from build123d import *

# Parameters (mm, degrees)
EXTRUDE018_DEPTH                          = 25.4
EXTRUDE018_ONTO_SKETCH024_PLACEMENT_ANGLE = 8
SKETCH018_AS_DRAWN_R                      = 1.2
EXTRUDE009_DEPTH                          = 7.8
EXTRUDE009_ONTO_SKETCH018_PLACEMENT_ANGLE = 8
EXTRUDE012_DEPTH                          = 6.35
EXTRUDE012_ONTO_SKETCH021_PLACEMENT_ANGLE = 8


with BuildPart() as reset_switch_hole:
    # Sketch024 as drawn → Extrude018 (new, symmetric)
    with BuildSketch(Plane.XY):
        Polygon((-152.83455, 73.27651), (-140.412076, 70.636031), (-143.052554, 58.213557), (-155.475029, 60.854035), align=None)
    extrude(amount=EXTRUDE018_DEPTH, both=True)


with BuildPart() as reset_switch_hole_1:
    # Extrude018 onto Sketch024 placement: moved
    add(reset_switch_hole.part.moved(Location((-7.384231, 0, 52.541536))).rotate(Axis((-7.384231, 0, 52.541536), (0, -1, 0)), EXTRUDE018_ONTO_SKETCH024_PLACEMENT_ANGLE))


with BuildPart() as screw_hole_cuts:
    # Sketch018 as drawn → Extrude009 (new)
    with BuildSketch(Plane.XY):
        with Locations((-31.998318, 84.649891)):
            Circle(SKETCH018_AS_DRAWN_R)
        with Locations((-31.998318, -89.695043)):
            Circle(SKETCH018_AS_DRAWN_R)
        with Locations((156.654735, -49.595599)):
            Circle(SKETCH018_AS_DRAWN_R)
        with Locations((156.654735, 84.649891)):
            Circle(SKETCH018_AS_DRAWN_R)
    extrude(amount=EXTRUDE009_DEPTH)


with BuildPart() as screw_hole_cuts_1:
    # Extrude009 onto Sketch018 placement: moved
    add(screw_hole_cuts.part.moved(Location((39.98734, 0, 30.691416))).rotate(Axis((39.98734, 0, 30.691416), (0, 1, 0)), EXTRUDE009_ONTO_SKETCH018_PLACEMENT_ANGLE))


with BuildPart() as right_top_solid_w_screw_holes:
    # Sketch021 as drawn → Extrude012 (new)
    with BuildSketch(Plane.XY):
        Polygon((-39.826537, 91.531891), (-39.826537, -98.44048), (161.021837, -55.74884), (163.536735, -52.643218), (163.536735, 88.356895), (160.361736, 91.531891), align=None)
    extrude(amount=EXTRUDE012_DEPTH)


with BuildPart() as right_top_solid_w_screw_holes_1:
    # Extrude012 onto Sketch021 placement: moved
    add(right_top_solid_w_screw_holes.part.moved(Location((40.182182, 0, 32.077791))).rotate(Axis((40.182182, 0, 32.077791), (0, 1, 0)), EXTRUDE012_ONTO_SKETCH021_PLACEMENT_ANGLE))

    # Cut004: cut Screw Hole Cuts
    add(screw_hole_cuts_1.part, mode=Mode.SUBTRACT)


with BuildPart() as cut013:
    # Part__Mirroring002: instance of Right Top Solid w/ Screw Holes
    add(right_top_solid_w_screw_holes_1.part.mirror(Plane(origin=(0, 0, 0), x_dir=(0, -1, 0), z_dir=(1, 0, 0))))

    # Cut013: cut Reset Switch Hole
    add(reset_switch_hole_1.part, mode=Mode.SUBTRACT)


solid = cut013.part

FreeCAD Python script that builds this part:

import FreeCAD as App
import Part
import Sketcher
Q = App.Units.Quantity

doc = App.newDocument("Part")
body = doc.addObject("PartDesign::Body", "Body")

sketch1 = body.newObject("Sketcher::SketchObject", "Sketch")
sketch1.AttachmentSupport = (doc.getObject("XY_Plane"), [""])
sketch1.MapMode = "FlatFace"
sketch1.addGeometry([
    Part.LineSegment(App.Vector(-140, 71, 0), App.Vector(-153, 73, 0)),
    Part.LineSegment(App.Vector(-153, 73, 0), App.Vector(-155, 61, 0)),
    Part.LineSegment(App.Vector(-155, 61, 0), App.Vector(-143, 58, 0)),
    Part.LineSegment(App.Vector(-143, 58, 0), App.Vector(-140, 71, 0)),
], False)
sketch1.addConstraint([
    Sketcher.Constraint("Coincident", 0, 2, 1, 1),
    Sketcher.Constraint("Coincident", 1, 2, 2, 1),
    Sketcher.Constraint("Coincident", 2, 2, 3, 1),
    Sketcher.Constraint("Coincident", 3, 2, 0, 1),
    Sketcher.Constraint("Perpendicular", 0, 1),
    Sketcher.Constraint("Perpendicular", 1, 2),
    Sketcher.Constraint("Perpendicular", 2, 3),
    Sketcher.Constraint("Equal", 0, 1),
    Sketcher.Constraint("Angle", 0, Q("167.999997 deg")),
    Sketcher.Constraint("Distance", 0, Q("0.5 in")),
    Sketcher.Constraint("DistanceX", 0, 2, -1, 1, 152.83455),
    Sketcher.Constraint("DistanceY", -1, 1, 0, 2, 73.27651),
])
pad1 = body.newObject("PartDesign::Pad", "Pad")
pad1.Profile = sketch1
pad1.Length = Q("2 in")
pad1.Midplane = True
body2 = doc.addObject("PartDesign::Body", "Body001")
doc.recompute()

body.Placement = App.Placement(App.Vector(-7.384231, 0, 52.541536), App.Rotation(App.Vector(0, -1, 0), 8))
boolean = body2.newObject("PartDesign::Boolean", "Boolean")
boolean.Type = "Fuse"
boolean.addObjects([body])
body3 = doc.addObject("PartDesign::Body", "Body002")
body3.AllowCompound = True

sketch2 = body3.newObject("Sketcher::SketchObject", "Sketch001")
sketch2.AttachmentSupport = (doc.getObject("XY_Plane002"), [""])
sketch2.MapMode = "FlatFace"
sketch2.addGeometry([
    Part.Circle(App.Vector(-32, 84.6, 0), App.Vector(0, 0, 1), 1.2),
    Part.Circle(App.Vector(-32, -89.7, 0), App.Vector(0, 0, 1), 1.2),
    Part.Circle(App.Vector(156.7, -49.6, 0), App.Vector(0, 0, 1), 1.2),
    Part.Circle(App.Vector(156.7, 84.6, 0), App.Vector(0, 0, 1), 1.2),
], False)
sketch2.addConstraint([
    Sketcher.Constraint("Equal", 0, 1),
    Sketcher.Constraint("Equal", 1, 2),
    Sketcher.Constraint("Equal", 2, 3),
    Sketcher.Constraint("Horizontal", 0, 3, 3, 3),
    Sketcher.Constraint("Vertical", 0, 3, 1, 3),
    Sketcher.Constraint("Vertical", 2, 3, 3, 3),
    Sketcher.Constraint("Diameter", 0, 2.4),
    Sketcher.Constraint("DistanceY", 2, 3, -1, 1, 49.595599),
    Sketcher.Constraint("DistanceX", 0, 3, -1, 1, 31.998318),
    Sketcher.Constraint("DistanceY", -1, 1, 0, 3, 84.649891),
    Sketcher.Constraint("DistanceY", 1, 3, -1, 1, 89.695043),
    Sketcher.Constraint("DistanceX", -1, 1, 2, 3, 156.654735),
])
pad2 = body3.newObject("PartDesign::Pad", "Pad001")
pad2.Profile = sketch2
pad2.Length = 7.8
body4 = doc.addObject("PartDesign::Body", "Body003")
body4.AllowCompound = True
doc.recompute()

body3.Placement = App.Placement(App.Vector(39.98734, 0, 30.691416), App.Rotation(App.Vector(0, 1, 0), 8))
boolean2 = body4.newObject("PartDesign::Boolean", "Boolean001")
boolean2.Type = "Fuse"
boolean2.addObjects([body3])
body5 = doc.addObject("PartDesign::Body", "Body004")

sketch3 = body5.newObject("Sketcher::SketchObject", "Sketch002")
sketch3.AttachmentSupport = (doc.getObject("XY_Plane004"), [""])
sketch3.MapMode = "FlatFace"
sketch3.addGeometry([
    Part.LineSegment(App.Vector(-39.8, 91.5, 0), App.Vector(-39.8, -98.4, 0)),
    Part.LineSegment(App.Vector(-39.8, -98.4, 0), App.Vector(161, -55.7, 0)),
    Part.LineSegment(App.Vector(161, -55.7, 0), App.Vector(163.5, -52.6, 0)),
    Part.LineSegment(App.Vector(163.5, -52.6, 0), App.Vector(163.5, 88.4, 0)),
    Part.LineSegment(App.Vector(163.5, 88.4, 0), App.Vector(160.4, 91.5, 0)),
    Part.LineSegment(App.Vector(160.4, 91.5, 0), App.Vector(-39.8, 91.5, 0)),
], False)
sketch3.addConstraint([
    Sketcher.Constraint("Coincident", 0, 2, 1, 1),
    Sketcher.Constraint("Coincident", 1, 2, 2, 1),
    Sketcher.Constraint("Coincident", 2, 2, 3, 1),
    Sketcher.Constraint("Coincident", 3, 2, 4, 1),
    Sketcher.Constraint("Coincident", 4, 2, 5, 1),
    Sketcher.Constraint("Coincident", 5, 2, 0, 1),
    Sketcher.Constraint("Vertical", 0),
    Sketcher.Constraint("Vertical", 3),
    Sketcher.Constraint("Horizontal", 5),
    Sketcher.Constraint("Angle", 1, Q("12 deg")),
    Sketcher.Constraint("DistanceX", 4, 2, 3, 2, Q("0.125 in")),
    Sketcher.Constraint("DistanceY", 3, 2, 4, 2, Q("0.1249998 in")),
    Sketcher.Constraint("Distance", 2, 3.996198),
    Sketcher.Constraint("DistanceY", 0, 2, 0, 1, 189.972371),
    Sketcher.Constraint("DistanceX", 4, 2, 1, 2, 0.660101),
    Sketcher.Constraint("DistanceX", 5, 2, 5, 1, 200.188273),
    Sketcher.Constraint("DistanceY", 0, 2, -1, 1, 98.44048),
    Sketcher.Constraint("DistanceX", 0, 2, -1, 1, 39.826537),
])
pad3 = body5.newObject("PartDesign::Pad", "Pad002")
pad3.Profile = sketch3
pad3.Length = Q("0.25 in")
body6 = doc.addObject("PartDesign::Body", "Body005")
doc.recompute()

body5.Placement = App.Placement(App.Vector(40.182182, 0, 32.077791), App.Rotation(App.Vector(0, 1, 0), 8))
boolean3 = body6.newObject("PartDesign::Boolean", "Boolean002")
boolean3.Type = "Fuse"
boolean3.addObjects([body5])
doc.recompute()

boolean4 = body6.newObject("PartDesign::Boolean", "Boolean003")
boolean4.Type = "Cut"
boolean4.addObjects([body4])
body7 = doc.addObject("PartDesign::Body", "Body006")
doc.recompute()

mirroring = doc.addObject("Part::Mirroring", "Mirroring")
mirroring.Source = body6
mirroring.Base = App.Vector(0, 0, 0)
mirroring.Normal = App.Vector(1, 0, 0)
body7.BaseFeature = mirroring
doc.recompute()

boolean5 = body7.newObject("PartDesign::Boolean", "Boolean004")
boolean5.Type = "Cut"
boolean5.addObjects([body2])
body6.Visibility = False
mirroring.Visibility = False

doc.recompute()
